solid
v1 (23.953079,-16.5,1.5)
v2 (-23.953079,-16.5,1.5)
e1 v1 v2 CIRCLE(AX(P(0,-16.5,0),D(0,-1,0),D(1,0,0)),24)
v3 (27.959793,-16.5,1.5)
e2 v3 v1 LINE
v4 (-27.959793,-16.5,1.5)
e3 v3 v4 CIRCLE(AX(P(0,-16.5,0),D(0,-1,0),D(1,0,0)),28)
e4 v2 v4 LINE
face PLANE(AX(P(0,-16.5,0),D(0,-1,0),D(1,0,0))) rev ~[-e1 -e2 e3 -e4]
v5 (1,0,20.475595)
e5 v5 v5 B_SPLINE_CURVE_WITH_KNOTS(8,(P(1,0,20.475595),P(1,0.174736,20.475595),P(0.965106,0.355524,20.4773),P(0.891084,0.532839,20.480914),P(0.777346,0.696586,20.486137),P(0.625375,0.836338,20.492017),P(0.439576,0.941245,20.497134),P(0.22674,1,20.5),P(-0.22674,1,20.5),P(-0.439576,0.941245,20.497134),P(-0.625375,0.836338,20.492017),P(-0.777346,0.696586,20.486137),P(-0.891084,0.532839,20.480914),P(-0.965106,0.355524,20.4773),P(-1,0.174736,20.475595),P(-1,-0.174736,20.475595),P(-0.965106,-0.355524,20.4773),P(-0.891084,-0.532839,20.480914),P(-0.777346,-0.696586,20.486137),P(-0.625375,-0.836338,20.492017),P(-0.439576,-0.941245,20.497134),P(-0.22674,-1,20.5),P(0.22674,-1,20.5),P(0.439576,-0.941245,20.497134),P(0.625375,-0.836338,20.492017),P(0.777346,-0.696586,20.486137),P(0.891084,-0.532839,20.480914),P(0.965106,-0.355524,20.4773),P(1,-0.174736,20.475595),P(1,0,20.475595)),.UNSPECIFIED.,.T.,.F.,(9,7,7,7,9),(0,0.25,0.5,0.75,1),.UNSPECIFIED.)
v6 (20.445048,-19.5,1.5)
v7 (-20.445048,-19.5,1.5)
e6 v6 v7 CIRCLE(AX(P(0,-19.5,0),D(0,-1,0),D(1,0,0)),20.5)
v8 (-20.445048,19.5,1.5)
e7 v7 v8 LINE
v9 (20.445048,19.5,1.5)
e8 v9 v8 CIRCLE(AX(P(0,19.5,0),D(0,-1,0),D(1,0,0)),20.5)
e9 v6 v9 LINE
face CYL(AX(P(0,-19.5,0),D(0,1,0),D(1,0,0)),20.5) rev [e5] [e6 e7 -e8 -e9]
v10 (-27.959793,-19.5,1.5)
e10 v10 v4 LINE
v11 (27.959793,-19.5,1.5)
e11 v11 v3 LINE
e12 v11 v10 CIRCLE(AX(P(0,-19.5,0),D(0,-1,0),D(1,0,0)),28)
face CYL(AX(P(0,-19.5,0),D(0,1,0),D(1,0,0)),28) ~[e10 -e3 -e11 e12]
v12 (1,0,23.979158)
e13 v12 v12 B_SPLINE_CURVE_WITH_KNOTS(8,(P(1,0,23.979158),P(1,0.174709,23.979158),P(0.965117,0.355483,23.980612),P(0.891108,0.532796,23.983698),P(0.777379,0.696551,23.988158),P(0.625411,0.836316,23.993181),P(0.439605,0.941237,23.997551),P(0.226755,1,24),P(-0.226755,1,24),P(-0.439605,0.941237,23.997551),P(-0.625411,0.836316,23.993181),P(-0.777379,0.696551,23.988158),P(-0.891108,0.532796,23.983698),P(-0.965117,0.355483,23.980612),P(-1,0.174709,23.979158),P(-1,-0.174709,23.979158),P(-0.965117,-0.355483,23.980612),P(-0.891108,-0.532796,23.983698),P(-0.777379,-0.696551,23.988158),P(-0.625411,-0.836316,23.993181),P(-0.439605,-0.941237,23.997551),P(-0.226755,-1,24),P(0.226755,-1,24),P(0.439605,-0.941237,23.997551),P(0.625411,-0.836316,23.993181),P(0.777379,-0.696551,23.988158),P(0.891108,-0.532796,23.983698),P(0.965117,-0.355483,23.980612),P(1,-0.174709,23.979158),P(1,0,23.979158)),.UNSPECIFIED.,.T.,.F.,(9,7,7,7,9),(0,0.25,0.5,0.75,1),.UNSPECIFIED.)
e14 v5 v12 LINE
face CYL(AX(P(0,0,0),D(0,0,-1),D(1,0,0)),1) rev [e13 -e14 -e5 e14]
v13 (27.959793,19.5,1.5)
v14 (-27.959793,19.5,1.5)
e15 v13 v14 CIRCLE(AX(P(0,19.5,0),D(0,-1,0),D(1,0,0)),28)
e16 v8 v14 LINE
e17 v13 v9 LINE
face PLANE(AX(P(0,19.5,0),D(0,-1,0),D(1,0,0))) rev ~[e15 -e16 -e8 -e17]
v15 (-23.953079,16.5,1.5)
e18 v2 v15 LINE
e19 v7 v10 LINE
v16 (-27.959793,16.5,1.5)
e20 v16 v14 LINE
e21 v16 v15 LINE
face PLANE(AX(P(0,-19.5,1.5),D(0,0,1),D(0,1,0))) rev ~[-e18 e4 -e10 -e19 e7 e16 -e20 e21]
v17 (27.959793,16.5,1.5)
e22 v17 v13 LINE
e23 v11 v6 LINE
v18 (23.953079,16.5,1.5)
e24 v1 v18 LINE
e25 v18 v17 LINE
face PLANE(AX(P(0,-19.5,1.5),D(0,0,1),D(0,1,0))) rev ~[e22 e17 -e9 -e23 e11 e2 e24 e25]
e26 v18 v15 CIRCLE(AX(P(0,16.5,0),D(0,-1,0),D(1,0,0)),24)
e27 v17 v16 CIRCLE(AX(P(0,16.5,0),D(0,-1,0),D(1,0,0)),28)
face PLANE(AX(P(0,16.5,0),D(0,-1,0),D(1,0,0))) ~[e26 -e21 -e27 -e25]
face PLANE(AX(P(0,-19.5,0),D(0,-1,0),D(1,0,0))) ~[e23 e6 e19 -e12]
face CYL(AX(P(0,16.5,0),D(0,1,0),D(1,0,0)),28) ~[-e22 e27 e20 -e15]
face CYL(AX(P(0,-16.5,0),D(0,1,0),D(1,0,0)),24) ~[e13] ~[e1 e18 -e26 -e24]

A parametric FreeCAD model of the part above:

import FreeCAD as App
import Part
import Sketcher

V = App.Vector
Q = App.Units.Quantity

doc = App.newDocument("Part")
body = doc.addObject("PartDesign::Body", "Body")

# Sketch on XY plane
sketch1 = doc.addObject("Sketcher::SketchObject", "Sketch")
body.addObject(sketch1)
sketch1.AttachmentSupport = (doc.XY_Plane, [""])
sketch1.MapMode = "FlatFace"
sketch1.addGeometry(Part.LineSegment(V(20.5, 19.5, 0), V(20.5, -19.5, 0)), False)
sketch1.addGeometry(Part.LineSegment(V(20.5, -19.5, 0), V(28, -19.5, 0)), False)
sketch1.addGeometry(Part.LineSegment(V(28, -19.5, 0), V(28, -16.5, 0)), False)
sketch1.addGeometry(Part.LineSegment(V(28, -16.5, 0), V(24, -16.5, 0)), False)
sketch1.addGeometry(Part.LineSegment(V(24, -16.5, 0), V(24, 16.5, 0)), False)
sketch1.addGeometry(Part.LineSegment(V(24, 16.5, 0), V(28, 16.5, 0)), False)
sketch1.addGeometry(Part.LineSegment(V(28, 16.5, 0), V(28, 19.5, 0)), False)
sketch1.addGeometry(Part.LineSegment(V(28, 19.5, 0), V(20.5, 19.5, 0)), False)
sketch1.addConstraint(Sketcher.Constraint("Coincident", 0, 2, 1, 1))
sketch1.addConstraint(Sketcher.Constraint("Coincident", 1, 2, 2, 1))
sketch1.addConstraint(Sketcher.Constraint("Coincident", 2, 2, 3, 1))
sketch1.addConstraint(Sketcher.Constraint("Coincident", 3, 2, 4, 1))
sketch1.addConstraint(Sketcher.Constraint("Coincident", 4, 2, 5, 1))
sketch1.addConstraint(Sketcher.Constraint("Coincident", 5, 2, 6, 1))
sketch1.addConstraint(Sketcher.Constraint("Coincident", 6, 2, 7, 1))
sketch1.addConstraint(Sketcher.Constraint("Coincident", 7, 2, 0, 1))
sketch1.addConstraint(Sketcher.Constraint("Vertical", 0))
sketch1.addConstraint(Sketcher.Constraint("Horizontal", 1))
sketch1.addConstraint(Sketcher.Constraint("Vertical", 2))
sketch1.addConstraint(Sketcher.Constraint("Horizontal", 3))
sketch1.addConstraint(Sketcher.Constraint("Vertical", 4))
sketch1.addConstraint(Sketcher.Constraint("Horizontal", 5))
sketch1.addConstraint(Sketcher.Constraint("Vertical", 6))
sketch1.addConstraint(Sketcher.Constraint("Horizontal", 7))
sketch1.addConstraint(Sketcher.Constraint("Symmetric", 2, 2, 5, 2, -1))
sketch1.addConstraint(Sketcher.Constraint("Equal", 2, 6))
sketch1.addConstraint(Sketcher.Constraint("DistanceX", 3, 2, 3, 1, Q("4 mm")))
sketch1.addConstraint(Sketcher.Constraint("DistanceY", 0, 2, 0, 1, Q("39 mm")))
sketch1.addConstraint(Sketcher.Constraint("DistanceY", 2, 1, 2, 2, Q("3 mm")))
sketch1.addConstraint(Sketcher.Constraint("DistanceX", 1, 1, 1, 2, Q("7.5 mm")))
sketch1.addConstraint(Sketcher.Constraint("DistanceX", -1, 1, 1, 2, Q("28 mm")))
revolution = doc.addObject("PartDesign::Revolution", "Revolution")
body.addObject(revolution)
revolution.Profile = sketch1
revolution.ReferenceAxis = (sketch1, ["V_Axis"])
revolution.Angle = 180
revolution.Reversed = True

# Sketch on XY plane
sketch2 = doc.addObject("Sketcher::SketchObject", "Sketch001")
body.addObject(sketch2)
sketch2.AttachmentSupport = (doc.XY_Plane, [""])
sketch2.MapMode = "FlatFace"
sketch2.addGeometry(Part.Circle(V(0, 0, 0), V(0, 0, 1), 1), False)
sketch2.addConstraint(Sketcher.Constraint("Coincident", 0, 3, -1, 1))
sketch2.addConstraint(Sketcher.Constraint("Diameter", 0, Q("2 mm")))
pocket1 = doc.addObject("PartDesign::Pocket", "Pocket")
body.addObject(pocket1)
pocket1.Profile = sketch2
pocket1.Length = 257.4558
pocket1.Midplane = True

# Sketch on YZ plane
sketch3 = doc.addObject("Sketcher::SketchObject", "Sketch002")
body.addObject(sketch3)
sketch3.AttachmentSupport = (doc.YZ_Plane, [""])
sketch3.MapMode = "FlatFace"
sketch3.addGeometry(Part.LineSegment(V(-19.5, 1.5, 0), V(-19.5, 0, 0)), False)
sketch3.addGeometry(Part.LineSegment(V(-19.5, 0, 0), V(19.5, 0, 0)), False)
sketch3.addGeometry(Part.LineSegment(V(19.5, 0, 0), V(19.5, 1.5, 0)), False)
sketch3.addGeometry(Part.LineSegment(V(19.5, 1.5, 0), V(-19.5, 1.5, 0)), False)
sketch3.addConstraint(Sketcher.Constraint("Coincident", 0, 2, 1, 1))
sketch3.addConstraint(Sketcher.Constraint("Coincident", 1, 2, 2, 1))
sketch3.addConstraint(Sketcher.Constraint("Coincident", 2, 2, 3, 1))
sketch3.addConstraint(Sketcher.Constraint("Coincident", 3, 2, 0, 1))
sketch3.addConstraint(Sketcher.Constraint("Vertical", 0))
sketch3.addConstraint(Sketcher.Constraint("Horizontal", 1))
sketch3.addConstraint(Sketcher.Constraint("Vertical", 2))
sketch3.addConstraint(Sketcher.Constraint("Horizontal", 3))
sketch3.addConstraint(Sketcher.Constraint("Symmetric", 0, 2, 1, 2, -1, 1))
sketch3.addConstraint(Sketcher.Constraint("DistanceX", 1, 1, 1, 2, Q("39 mm")))
sketch3.addConstraint(Sketcher.Constraint("DistanceY", 0, 2, 0, 1, Q("1.5 mm")))
pocket2 = doc.addObject("PartDesign::Pocket", "Pocket001")
body.addObject(pocket2)
pocket2.Profile = sketch3
pocket2.Length = 153.986
pocket2.Midplane = True

doc.recompute()
